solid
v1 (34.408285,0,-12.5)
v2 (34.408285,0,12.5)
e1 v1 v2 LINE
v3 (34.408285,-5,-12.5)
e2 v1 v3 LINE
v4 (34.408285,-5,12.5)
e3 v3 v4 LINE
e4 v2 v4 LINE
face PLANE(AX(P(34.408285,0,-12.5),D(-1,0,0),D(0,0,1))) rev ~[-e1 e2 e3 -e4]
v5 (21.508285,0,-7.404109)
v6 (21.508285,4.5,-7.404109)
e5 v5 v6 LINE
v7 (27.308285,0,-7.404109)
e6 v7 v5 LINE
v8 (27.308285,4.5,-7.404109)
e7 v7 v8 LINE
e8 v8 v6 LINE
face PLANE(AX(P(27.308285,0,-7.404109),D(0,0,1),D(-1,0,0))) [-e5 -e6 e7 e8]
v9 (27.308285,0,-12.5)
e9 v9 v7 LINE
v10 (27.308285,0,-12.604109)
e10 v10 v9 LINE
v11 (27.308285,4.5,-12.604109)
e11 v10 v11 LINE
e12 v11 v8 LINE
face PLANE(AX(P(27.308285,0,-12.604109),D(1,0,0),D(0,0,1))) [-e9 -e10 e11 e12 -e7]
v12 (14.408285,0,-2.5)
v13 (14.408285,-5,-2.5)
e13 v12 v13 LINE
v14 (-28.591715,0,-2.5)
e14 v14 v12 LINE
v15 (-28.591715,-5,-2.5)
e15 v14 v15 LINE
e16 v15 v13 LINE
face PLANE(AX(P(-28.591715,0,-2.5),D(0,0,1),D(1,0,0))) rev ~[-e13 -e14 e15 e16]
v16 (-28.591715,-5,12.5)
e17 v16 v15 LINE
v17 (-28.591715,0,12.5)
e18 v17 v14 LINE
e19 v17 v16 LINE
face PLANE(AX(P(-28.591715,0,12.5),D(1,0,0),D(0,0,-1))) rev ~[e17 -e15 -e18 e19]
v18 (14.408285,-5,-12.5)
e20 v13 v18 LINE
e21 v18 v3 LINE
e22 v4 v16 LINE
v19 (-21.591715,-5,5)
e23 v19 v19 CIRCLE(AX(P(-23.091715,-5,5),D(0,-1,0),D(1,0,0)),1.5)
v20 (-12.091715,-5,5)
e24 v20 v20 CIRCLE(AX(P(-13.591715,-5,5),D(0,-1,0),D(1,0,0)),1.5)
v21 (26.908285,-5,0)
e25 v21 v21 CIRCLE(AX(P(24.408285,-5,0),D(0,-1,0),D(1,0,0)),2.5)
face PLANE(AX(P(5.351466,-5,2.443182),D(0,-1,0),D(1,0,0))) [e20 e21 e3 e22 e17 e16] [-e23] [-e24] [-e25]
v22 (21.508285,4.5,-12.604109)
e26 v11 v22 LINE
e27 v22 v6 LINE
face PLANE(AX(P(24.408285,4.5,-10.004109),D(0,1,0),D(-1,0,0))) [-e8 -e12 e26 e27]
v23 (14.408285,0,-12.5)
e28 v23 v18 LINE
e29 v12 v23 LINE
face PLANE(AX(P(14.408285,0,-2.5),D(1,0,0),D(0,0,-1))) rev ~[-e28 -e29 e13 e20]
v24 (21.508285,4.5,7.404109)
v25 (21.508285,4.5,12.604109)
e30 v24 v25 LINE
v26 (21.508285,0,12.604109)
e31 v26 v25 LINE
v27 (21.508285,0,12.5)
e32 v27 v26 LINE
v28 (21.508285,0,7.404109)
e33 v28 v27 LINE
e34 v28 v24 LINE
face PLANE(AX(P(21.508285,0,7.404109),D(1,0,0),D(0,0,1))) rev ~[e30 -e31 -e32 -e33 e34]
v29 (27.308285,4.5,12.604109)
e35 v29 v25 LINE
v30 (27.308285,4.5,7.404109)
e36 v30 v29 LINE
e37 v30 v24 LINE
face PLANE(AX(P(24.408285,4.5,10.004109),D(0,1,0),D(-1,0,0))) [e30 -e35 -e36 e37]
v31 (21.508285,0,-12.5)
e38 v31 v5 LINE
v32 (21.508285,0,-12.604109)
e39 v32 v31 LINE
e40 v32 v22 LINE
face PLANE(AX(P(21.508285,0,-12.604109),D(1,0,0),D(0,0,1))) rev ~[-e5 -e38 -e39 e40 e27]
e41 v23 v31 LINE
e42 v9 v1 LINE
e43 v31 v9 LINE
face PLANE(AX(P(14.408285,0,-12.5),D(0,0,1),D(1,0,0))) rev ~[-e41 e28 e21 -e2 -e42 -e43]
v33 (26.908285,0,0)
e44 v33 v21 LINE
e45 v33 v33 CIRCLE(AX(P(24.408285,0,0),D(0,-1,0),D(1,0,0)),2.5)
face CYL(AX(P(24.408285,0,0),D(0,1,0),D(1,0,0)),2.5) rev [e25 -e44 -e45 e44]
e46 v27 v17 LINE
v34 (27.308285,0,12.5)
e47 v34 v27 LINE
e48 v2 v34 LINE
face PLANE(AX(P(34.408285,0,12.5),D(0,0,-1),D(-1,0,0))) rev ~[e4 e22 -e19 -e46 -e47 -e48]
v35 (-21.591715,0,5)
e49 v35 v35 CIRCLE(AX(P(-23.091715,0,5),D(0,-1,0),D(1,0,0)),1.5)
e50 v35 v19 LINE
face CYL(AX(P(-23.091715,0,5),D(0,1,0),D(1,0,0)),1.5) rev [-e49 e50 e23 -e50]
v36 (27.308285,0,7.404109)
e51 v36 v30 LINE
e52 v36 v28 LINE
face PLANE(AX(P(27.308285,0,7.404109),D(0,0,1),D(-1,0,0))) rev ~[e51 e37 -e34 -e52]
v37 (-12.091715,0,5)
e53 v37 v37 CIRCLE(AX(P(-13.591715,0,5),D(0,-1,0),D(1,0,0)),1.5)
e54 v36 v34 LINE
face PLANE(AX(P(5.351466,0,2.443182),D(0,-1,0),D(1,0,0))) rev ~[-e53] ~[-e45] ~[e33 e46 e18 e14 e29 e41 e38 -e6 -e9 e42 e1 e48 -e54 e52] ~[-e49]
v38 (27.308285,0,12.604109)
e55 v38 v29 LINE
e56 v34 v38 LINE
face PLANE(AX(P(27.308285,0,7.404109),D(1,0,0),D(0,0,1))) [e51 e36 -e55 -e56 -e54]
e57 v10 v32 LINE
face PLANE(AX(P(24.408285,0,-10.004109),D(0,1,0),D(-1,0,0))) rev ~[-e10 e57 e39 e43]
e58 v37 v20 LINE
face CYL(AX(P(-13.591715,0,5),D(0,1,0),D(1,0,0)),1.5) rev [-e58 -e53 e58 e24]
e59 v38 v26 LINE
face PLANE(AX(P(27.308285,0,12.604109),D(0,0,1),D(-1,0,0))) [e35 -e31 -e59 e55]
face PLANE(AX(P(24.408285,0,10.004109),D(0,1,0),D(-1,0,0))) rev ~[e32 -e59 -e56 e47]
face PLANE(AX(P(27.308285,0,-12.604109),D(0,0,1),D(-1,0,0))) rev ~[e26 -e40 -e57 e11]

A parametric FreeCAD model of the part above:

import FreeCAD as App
import Part
import Sketcher
from FreeCAD import Vector

doc = App.newDocument("Part")
body = doc.addObject("PartDesign::Body", "Body")

sketch1 = body.newObject("Sketcher::SketchObject", "Sketch")
sketch1.AttachmentSupport = (doc.getObject("XZ_Plane"), [""])
sketch1.MapMode = "FlatFace"
sketch1.addGeometry([
    Part.LineSegment(Vector(34.4, -12.5, 0), Vector(34.4, 12.5, 0)),
    Part.LineSegment(Vector(34.4, 12.5, 0), Vector(-28.6, 12.5, 0)),
    Part.LineSegment(Vector(-28.6, 12.5, 0), Vector(-28.6, -2.5, 0)),
    Part.LineSegment(Vector(-28.6, -2.5, 0), Vector(14.4, -2.5, 0)),
    Part.LineSegment(Vector(14.4, -2.5, 0), Vector(14.4, -12.5, 0)),
    Part.LineSegment(Vector(14.4, -12.5, 0), Vector(34.4, -12.5, 0)),
    Part.Circle(Vector(24.4, 0, 0), Vector(0, 0, 1), 2.5),
    Part.Circle(Vector(-23.1, 5, 0), Vector(0, 0, 1), 1.5),
    Part.Circle(Vector(-13.6, 5, 0), Vector(0, 0, 1), 1.5),
], False)
sketch1.addConstraint([
    Sketcher.Constraint("Coincident", 0, 2, 1, 1),
    Sketcher.Constraint("Coincident", 1, 2, 2, 1),
    Sketcher.Constraint("Coincident", 2, 2, 3, 1),
    Sketcher.Constraint("Coincident", 3, 2, 4, 1),
    Sketcher.Constraint("Coincident", 4, 2, 5, 1),
    Sketcher.Constraint("Coincident", 5, 2, 0, 1),
    Sketcher.Constraint("Vertical", 0),
    Sketcher.Constraint("Horizontal", 1),
    Sketcher.Constraint("Vertical", 2),
    Sketcher.Constraint("Horizontal", 3),
    Sketcher.Constraint("Vertical", 4),
    Sketcher.Constraint("Horizontal", 5),
    Sketcher.Constraint("Equal", 7, 8),
    Sketcher.Constraint("PointOnObject", 6, 3, -1),
    Sketcher.Constraint("Horizontal", 7, 3, 8, 3),
    Sketcher.Constraint("Diameter", 6, 5.0),
    Sketcher.Constraint("Diameter", 7, 3.0),
    Sketcher.Constraint("DistanceX", 1, 2, 1, 1, 63.0),
    Sketcher.Constraint("DistanceX", 3, 1, 3, 2, 43.0),
    Sketcher.Constraint("DistanceY", 0, 1, 0, 2, 25.0),
    Sketcher.Constraint("DistanceY", 2, 2, 2, 1, 15.0),
    Sketcher.Constraint("DistanceY", -1, 1, 7, 3, 5.0),
    Sketcher.Constraint("DistanceX", 8, 3, 6, 3, 38.0),
    Sketcher.Constraint("DistanceX", 6, 3, 0, 2, 10.0),
    Sketcher.Constraint("DistanceY", -1, 1, 0, 2, 12.5),
    Sketcher.Constraint("DistanceX", 7, 3, 6, 3, 47.5),
    Sketcher.Constraint("DistanceX", -1, 1, 6, 3, 24.408285),
])
pad1 = body.newObject("PartDesign::Pad", "Pad")
pad1.Profile = sketch1
pad1.Length = 5

sketch2 = body.newObject("Sketcher::SketchObject", "Sketch001")
sketch2.AttachmentSupport = (doc.getObject("XZ_Plane"), [""])
sketch2.MapMode = "FlatFace"
sketch2.addGeometry([
    Part.LineSegment(Vector(27, 13, 0), Vector(27, 7, 0)),
    Part.LineSegment(Vector(27, 7, 0), Vector(22, 7, 0)),
    Part.LineSegment(Vector(22, 7, 0), Vector(22, 13, 0)),
    Part.LineSegment(Vector(22, 13, 0), Vector(27, 13, 0)),
    Part.LineSegment(Vector(27, -7, 0), Vector(27, -13, 0)),
    Part.LineSegment(Vector(27, -13, 0), Vector(22, -13, 0)),
    Part.LineSegment(Vector(22, -13, 0), Vector(22, -7, 0)),
    Part.LineSegment(Vector(22, -7, 0), Vector(27, -7, 0)),
], False)
sketch2.addConstraint([
    Sketcher.Constraint("Coincident", 0, 2, 1, 1),
    Sketcher.Constraint("Coincident", 1, 2, 2, 1),
    Sketcher.Constraint("Coincident", 2, 2, 3, 1),
    Sketcher.Constraint("Coincident", 3, 2, 0, 1),
    Sketcher.Constraint("Coincident", 4, 2, 5, 1),
    Sketcher.Constraint("Coincident", 5, 2, 6, 1),
    Sketcher.Constraint("Coincident", 6, 2, 7, 1),
    Sketcher.Constraint("Coincident", 7, 2, 4, 1),
    Sketcher.Constraint("Vertical", 0),
    Sketcher.Constraint("Horizontal", 1),
    Sketcher.Constraint("Vertical", 2),
    Sketcher.Constraint("Horizontal", 3),
    Sketcher.Constraint("Vertical", 4),
    Sketcher.Constraint("Horizontal", 5),
    Sketcher.Constraint("Vertical", 6),
    Sketcher.Constraint("Horizontal", 7),
    Sketcher.Constraint("Symmetric", 3, 2, 4, 2, -1),
    Sketcher.Constraint("Symmetric", 1, 2, 6, 2, -1),
    Sketcher.Constraint("DistanceX", 1, 2, 1, 1, 5.8),
    Sketcher.Constraint("DistanceY", 0, 2, 0, 1, 5.2),
    Sketcher.Constraint("DistanceY", -1, 1, 0, 2, 7.404109),
    Sketcher.Constraint("DistanceX", -1, 1, 0, 2, 27.308285),
])
pad2 = body.newObject("PartDesign::Pad", "Pad001")
pad2.Profile = sketch2
pad2.Length = 4.5
pad2.Reversed = True

doc.recompute()
